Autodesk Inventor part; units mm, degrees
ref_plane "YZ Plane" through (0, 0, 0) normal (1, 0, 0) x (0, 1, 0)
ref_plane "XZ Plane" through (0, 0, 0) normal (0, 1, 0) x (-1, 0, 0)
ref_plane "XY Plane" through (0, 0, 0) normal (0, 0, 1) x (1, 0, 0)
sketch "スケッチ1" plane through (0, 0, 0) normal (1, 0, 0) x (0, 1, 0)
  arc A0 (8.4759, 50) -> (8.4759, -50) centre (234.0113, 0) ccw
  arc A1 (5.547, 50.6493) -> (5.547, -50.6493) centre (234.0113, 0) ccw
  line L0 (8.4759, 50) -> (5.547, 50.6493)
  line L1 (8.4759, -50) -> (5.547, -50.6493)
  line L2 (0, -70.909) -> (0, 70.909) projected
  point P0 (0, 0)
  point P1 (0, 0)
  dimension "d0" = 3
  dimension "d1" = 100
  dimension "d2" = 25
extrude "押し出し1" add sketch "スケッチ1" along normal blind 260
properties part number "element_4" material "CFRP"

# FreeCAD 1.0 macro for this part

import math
import FreeCAD as App
import Part
import Sketcher
Q = App.Units.Quantity

doc = App.newDocument("Part")
body = doc.addObject("PartDesign::Body", "Body")

sketch1 = body.newObject("Sketcher::SketchObject", "Sketch")
sketch1.AttachmentSupport = (doc.getObject("YZ_Plane"), [""])
sketch1.MapMode = "FlatFace"
sketch1.addGeometry([
    Part.ArcOfCircle(Part.Circle(App.Vector(234.0113, 0, 0), App.Vector(0, 0, 1), 231.011291), math.radians(167.499999), math.radians(192.500001)),
    Part.LineSegment(App.Vector(8.4759, 50, 0), App.Vector(5.547, 50.6493, 0)),
    Part.ArcOfCircle(Part.Circle(App.Vector(234.0113, 0, 0), App.Vector(0, 0, 1), 234.011299), math.radians(167.500004), math.radians(192.499996)),
    Part.LineSegment(App.Vector(5.547, -50.6493, 0), App.Vector(8.4759, -50, 0)),
], False)
sketch1.addConstraint([
    Sketcher.Constraint("Coincident", 0, 1, 1, 1),
    Sketcher.Constraint("Coincident", 1, 2, 2, 1),
    Sketcher.Constraint("Coincident", 2, 2, 3, 1),
    Sketcher.Constraint("Coincident", 3, 2, 0, 2),
    Sketcher.Constraint("Coincident", 2, 3, 0, 3),
    Sketcher.Constraint("Symmetric", 1, 2, 2, 2, -1),
    Sketcher.Constraint("Vertical", 0, 1, 3, 2),
    Sketcher.Constraint("Distance", 1, 3.0),
    Sketcher.Constraint("DistanceY", 3, 2, 0, 1, 100.0),
    Sketcher.Constraint("Angle", 1, Q("167.5004 deg")),
    Sketcher.Constraint("Radius", 0, 231.0113),
    Sketcher.Constraint("DistanceX", -1, 1, 0, 1, 8.476),
])
pad1 = body.newObject("PartDesign::Pad", "Pad")
pad1.Profile = sketch1
pad1.Length = 260

doc.recompute()
